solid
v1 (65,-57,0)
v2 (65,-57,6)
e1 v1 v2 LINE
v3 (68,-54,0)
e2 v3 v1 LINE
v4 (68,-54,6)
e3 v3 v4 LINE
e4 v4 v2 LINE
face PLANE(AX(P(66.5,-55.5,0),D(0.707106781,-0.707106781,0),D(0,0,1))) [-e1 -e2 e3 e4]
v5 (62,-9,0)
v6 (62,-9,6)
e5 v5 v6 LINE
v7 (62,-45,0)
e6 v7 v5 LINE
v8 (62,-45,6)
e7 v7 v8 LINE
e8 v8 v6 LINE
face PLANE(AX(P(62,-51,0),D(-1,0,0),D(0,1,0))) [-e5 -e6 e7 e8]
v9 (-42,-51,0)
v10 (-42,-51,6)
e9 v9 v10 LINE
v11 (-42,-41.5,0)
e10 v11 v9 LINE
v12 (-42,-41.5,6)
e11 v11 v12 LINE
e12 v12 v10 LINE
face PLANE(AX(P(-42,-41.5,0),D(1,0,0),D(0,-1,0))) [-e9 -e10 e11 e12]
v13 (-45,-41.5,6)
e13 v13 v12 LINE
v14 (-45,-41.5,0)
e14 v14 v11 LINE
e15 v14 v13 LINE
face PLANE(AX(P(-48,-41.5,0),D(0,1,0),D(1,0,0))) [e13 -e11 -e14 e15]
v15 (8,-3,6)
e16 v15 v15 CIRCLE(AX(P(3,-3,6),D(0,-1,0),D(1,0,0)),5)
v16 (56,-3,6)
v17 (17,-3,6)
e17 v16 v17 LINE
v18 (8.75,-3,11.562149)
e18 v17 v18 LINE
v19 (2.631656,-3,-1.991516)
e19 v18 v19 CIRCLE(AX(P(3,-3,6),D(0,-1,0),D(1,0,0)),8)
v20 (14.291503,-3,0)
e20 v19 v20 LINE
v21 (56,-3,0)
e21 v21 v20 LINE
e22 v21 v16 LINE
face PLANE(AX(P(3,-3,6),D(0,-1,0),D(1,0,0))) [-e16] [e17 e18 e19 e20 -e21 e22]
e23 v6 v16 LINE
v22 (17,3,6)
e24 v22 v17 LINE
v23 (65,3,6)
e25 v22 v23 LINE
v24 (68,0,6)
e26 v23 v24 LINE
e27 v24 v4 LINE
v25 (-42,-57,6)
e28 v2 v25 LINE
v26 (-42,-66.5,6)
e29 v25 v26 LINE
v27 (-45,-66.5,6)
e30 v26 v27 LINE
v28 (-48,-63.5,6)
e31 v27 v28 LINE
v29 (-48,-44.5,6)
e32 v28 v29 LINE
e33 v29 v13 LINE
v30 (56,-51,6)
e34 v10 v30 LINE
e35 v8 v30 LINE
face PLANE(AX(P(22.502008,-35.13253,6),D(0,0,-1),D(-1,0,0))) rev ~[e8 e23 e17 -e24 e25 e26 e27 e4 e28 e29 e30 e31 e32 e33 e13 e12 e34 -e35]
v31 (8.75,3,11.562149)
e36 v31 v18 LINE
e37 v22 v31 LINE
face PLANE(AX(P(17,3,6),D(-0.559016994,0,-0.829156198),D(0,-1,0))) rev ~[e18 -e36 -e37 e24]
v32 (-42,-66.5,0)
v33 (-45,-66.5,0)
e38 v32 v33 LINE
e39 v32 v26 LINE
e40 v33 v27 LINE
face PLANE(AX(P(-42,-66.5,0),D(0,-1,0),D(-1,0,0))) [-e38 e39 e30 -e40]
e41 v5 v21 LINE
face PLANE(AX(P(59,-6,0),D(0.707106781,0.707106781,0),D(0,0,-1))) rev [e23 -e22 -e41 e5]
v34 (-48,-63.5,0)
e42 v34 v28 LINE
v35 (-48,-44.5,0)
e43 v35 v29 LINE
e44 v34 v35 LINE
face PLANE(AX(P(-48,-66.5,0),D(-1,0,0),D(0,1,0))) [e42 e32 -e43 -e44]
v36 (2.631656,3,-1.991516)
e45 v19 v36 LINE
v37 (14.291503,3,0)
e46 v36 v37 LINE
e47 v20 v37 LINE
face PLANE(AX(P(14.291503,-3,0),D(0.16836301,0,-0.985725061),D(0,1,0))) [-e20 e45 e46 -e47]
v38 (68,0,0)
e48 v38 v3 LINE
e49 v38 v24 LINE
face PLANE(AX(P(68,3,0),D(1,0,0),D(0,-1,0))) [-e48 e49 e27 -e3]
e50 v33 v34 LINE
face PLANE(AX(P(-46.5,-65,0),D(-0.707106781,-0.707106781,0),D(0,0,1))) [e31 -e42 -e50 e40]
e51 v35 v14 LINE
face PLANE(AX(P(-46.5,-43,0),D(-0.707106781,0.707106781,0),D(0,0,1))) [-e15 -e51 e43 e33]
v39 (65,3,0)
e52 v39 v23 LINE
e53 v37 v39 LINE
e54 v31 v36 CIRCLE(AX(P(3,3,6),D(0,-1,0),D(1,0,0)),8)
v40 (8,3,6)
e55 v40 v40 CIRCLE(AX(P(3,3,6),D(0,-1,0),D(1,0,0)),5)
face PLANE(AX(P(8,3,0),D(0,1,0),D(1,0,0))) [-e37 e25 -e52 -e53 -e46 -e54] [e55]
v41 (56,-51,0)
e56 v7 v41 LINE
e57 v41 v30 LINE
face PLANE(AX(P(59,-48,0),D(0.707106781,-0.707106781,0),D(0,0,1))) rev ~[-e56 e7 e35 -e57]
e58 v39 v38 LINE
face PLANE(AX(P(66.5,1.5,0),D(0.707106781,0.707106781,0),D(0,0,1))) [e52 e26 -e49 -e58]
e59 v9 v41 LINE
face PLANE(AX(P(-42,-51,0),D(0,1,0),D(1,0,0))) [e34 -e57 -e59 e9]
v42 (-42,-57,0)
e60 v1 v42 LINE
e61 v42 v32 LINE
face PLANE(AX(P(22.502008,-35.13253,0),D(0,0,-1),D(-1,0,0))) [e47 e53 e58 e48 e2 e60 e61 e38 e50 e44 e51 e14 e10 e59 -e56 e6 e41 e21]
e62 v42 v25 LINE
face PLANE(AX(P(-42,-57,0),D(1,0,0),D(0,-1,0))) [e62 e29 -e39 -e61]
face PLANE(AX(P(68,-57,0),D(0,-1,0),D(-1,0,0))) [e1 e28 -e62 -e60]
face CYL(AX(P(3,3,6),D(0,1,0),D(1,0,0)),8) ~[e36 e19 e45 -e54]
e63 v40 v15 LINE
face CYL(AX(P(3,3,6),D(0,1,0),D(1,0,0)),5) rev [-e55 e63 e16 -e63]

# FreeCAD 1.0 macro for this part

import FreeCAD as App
import Part
import Sketcher

V = App.Vector
Q = App.Units.Quantity


def edges_at(feature, points):
    """Names of the edges that pass closest to the given points."""
    edges = feature.Shape.Edges
    near = lambda p: min(range(len(edges)), key=lambda i: edges[i].distToShape(Part.Vertex(*p))[0])
    return sorted({f"Edge{near(p) + 1}" for p in points})

doc = App.newDocument("Part")
body = doc.addObject("PartDesign::Body", "Body")

# Sketch on XY plane
sketch1 = body.newObject("Sketcher::SketchObject", "Sketch")
sketch1.AttachmentSupport = (doc.getObject("XY_Plane"), [""])
sketch1.MapMode = "FlatFace"
sketch1.addGeometry(Part.LineSegment(V(68, 3, 0), V(8, 3, 0)), False)
sketch1.addGeometry(Part.LineSegment(V(8, 3, 0), V(8, -3, 0)), False)
sketch1.addGeometry(Part.LineSegment(V(8, -3, 0), V(62, -3, 0)), False)
sketch1.addGeometry(Part.LineSegment(V(62, -3, 0), V(62, -51, 0)), False)
sketch1.addGeometry(Part.LineSegment(V(62, -51, 0), V(-42, -51, 0)), False)
sketch1.addGeometry(Part.LineSegment(V(-42, -51, 0), V(-42, -42, 0)), False)
sketch1.addGeometry(Part.LineSegment(V(-42, -42, 0), V(-48, -42, 0)), False)
sketch1.addGeometry(Part.LineSegment(V(-48, -42, 0), V(-48, -66, 0)), False)
sketch1.addGeometry(Part.LineSegment(V(-48, -66, 0), V(-42, -66, 0)), False)
sketch1.addGeometry(Part.LineSegment(V(-42, -66, 0), V(-42, -57, 0)), False)
sketch1.addGeometry(Part.LineSegment(V(-42, -57, 0), V(68, -57, 0)), False)
sketch1.addGeometry(Part.LineSegment(V(68, -57, 0), V(68, 3, 0)), False)
sketch1.addConstraint(Sketcher.Constraint("Coincident", 0, 2, 1, 1))
sketch1.addConstraint(Sketcher.Constraint("Coincident", 1, 2, 2, 1))
sketch1.addConstraint(Sketcher.Constraint("Coincident", 2, 2, 3, 1))
sketch1.addConstraint(Sketcher.Constraint("Coincident", 3, 2, 4, 1))
sketch1.addConstraint(Sketcher.Constraint("Coincident", 4, 2, 5, 1))
sketch1.addConstraint(Sketcher.Constraint("Coincident", 5, 2, 6, 1))
sketch1.addConstraint(Sketcher.Constraint("Coincident", 6, 2, 7, 1))
sketch1.addConstraint(Sketcher.Constraint("Coincident", 7, 2, 8, 1))
sketch1.addConstraint(Sketcher.Constraint("Coincident", 8, 2, 9, 1))
sketch1.addConstraint(Sketcher.Constraint("Coincident", 9, 2, 10, 1))
sketch1.addConstraint(Sketcher.Constraint("Coincident", 10, 2, 11, 1))
sketch1.addConstraint(Sketcher.Constraint("Coincident", 11, 2, 0, 1))
sketch1.addConstraint(Sketcher.Constraint("Horizontal", 0))
sketch1.addConstraint(Sketcher.Constraint("Vertical", 1))
sketch1.addConstraint(Sketcher.Constraint("Horizontal", 2))
sketch1.addConstraint(Sketcher.Constraint("Vertical", 3))
sketch1.addConstraint(Sketcher.Constraint("Horizontal", 4))
sketch1.addConstraint(Sketcher.Constraint("Vertical", 5))
sketch1.addConstraint(Sketcher.Constraint("Horizontal", 6))
sketch1.addConstraint(Sketcher.Constraint("Vertical", 7))
sketch1.addConstraint(Sketcher.Constraint("Horizontal", 8))
sketch1.addConstraint(Sketcher.Constraint("Vertical", 9))
sketch1.addConstraint(Sketcher.Constraint("Horizontal", 10))
sketch1.addConstraint(Sketcher.Constraint("Vertical", 11))
sketch1.addConstraint(Sketcher.Constraint("Vertical", 5, 2, 8, 2))
sketch1.addConstraint(Sketcher.Constraint("Equal", 8, 1))
sketch1.addConstraint(Sketcher.Constraint("Equal", 5, 9))
sketch1.addConstraint(Sketcher.Constraint("Equal", 0, 11))
sketch1.addConstraint(Sketcher.Constraint("DistanceX", 0, 2, 0, 1, Q("60 mm")))
sketch1.addConstraint(Sketcher.Constraint("DistanceX", 2, 1, 2, 2, Q("54 mm")))
sketch1.addConstraint(Sketcher.Constraint("DistanceX", 4, 2, 4, 1, Q("104 mm")))
sketch1.addConstraint(Sketcher.Constraint("DistanceX", 6, 2, 6, 1, Q("6 mm")))
sketch1.addConstraint(Sketcher.Constraint("DistanceY", 3, 2, 3, 1, Q("48 mm")))
sketch1.addConstraint(Sketcher.Constraint("DistanceY", 7, 2, 7, 1, Q("25 mm")))
sketch1.addConstraint(Sketcher.Constraint("DistanceX", -1, 1, 0, 2, Q("8 mm")))
sketch1.addConstraint(Sketcher.Constraint("DistanceY", -1, 1, 0, 2, Q("3 mm")))
pad1 = body.newObject("PartDesign::Pad", "Pad")
pad1.Profile = sketch1
pad1.Length = 6
body2 = doc.addObject("PartDesign::Body", "Body001")

# Sketch on XY plane
sketch2 = body2.newObject("Sketcher::SketchObject", "Sketch001")
sketch2.AttachmentSupport = (doc.getObject("XY_Plane001"), [""])
sketch2.MapMode = "FlatFace"
sketch2.addGeometry(Part.Circle(V(3, 3, 0), V(0, 0, 1), 5), False)
sketch2.addConstraint(Sketcher.Constraint("Diameter", 0, Q("10 mm")))
sketch2.addConstraint(Sketcher.Constraint("DistanceX", -1, 1, 0, 3, Q("3 mm")))
sketch2.addConstraint(Sketcher.Constraint("DistanceY", -1, 1, 0, 3, Q("3 mm")))
pad2 = body2.newObject("PartDesign::Pad", "Pad001")
pad2.Profile = sketch2
pad2.Length = 6
body3 = doc.addObject("PartDesign::Body", "Body002")

# Sketch on XY plane
sketch3 = body3.newObject("Sketcher::SketchObject", "Sketch002")
sketch3.AttachmentSupport = (doc.getObject("XY_Plane002"), [""])
sketch3.MapMode = "FlatFace"
sketch3.addGeometry(Part.Circle(V(3, 3, 0), V(0, 0, 1), 8), False)
sketch3.addConstraint(Sketcher.Constraint("Diameter", 0, Q("16 mm")))
sketch3.addConstraint(Sketcher.Constraint("DistanceX", -1, 1, 0, 3, Q("3 mm")))
sketch3.addConstraint(Sketcher.Constraint("DistanceY", -1, 1, 0, 3, Q("3 mm")))
pad3 = body3.newObject("PartDesign::Pad", "Pad002")
pad3.Profile = sketch3
pad3.Length = 6
doc.recompute()

boolean = body3.newObject("PartDesign::Boolean", "Boolean")
boolean.Type = "Cut"
boolean.addObjects([body2])
body4 = doc.addObject("PartDesign::Body", "Body003")
doc.recompute()

body3.Placement = App.Placement(V(0, 3, 3), App.Rotation(V(1, 0, 0), 90))
boolean2 = body4.newObject("PartDesign::Boolean", "Boolean001")
boolean2.Type = "Fuse"
boolean2.addObjects([body3])
doc.recompute()

boolean3 = body4.newObject("PartDesign::Boolean", "Boolean002")
boolean3.Type = "Fuse"
boolean3.addObjects([body])
doc.recompute()

chamfer = body4.newObject("PartDesign::Chamfer", "Chamfer")
chamfer.Base = (boolean3, edges_at(boolean3, [(11, 0, 6)]))
chamfer.Size = 6
doc.recompute()

chamfer2 = body4.newObject("PartDesign::Chamfer", "Chamfer001")
chamfer2.Base = (chamfer, edges_at(chamfer, [(8.292, 0, 0)]))
chamfer2.Size = 6
doc.recompute()

chamfer3 = body4.newObject("PartDesign::Chamfer", "Chamfer002")
chamfer3.Base = (chamfer2, edges_at(chamfer2, [(62, -51, 3)]))
chamfer3.Size = 6
doc.recompute()

chamfer4 = body4.newObject("PartDesign::Chamfer", "Chamfer003")
chamfer4.Base = (chamfer3, edges_at(chamfer3, [(62, -3, 3)]))
chamfer4.Size = 6
doc.recompute()

chamfer5 = body4.newObject("PartDesign::Chamfer", "Chamfer004")
chamfer5.Base = (chamfer4, edges_at(chamfer4, [(68, 3, 3)]))
chamfer5.Size = 3
doc.recompute()

chamfer6 = body4.newObject("PartDesign::Chamfer", "Chamfer005")
chamfer6.Base = (chamfer5, edges_at(chamfer5, [(68, -57, 3)]))
chamfer6.Size = 3
doc.recompute()

chamfer7 = body4.newObject("PartDesign::Chamfer", "Chamfer006")
chamfer7.Base = (chamfer6, edges_at(chamfer6, [(-48, -66.5, 3)]))
chamfer7.Size = 3
doc.recompute()

chamfer8 = body4.newObject("PartDesign::Chamfer", "Chamfer007")
chamfer8.Base = (chamfer7, edges_at(chamfer7, [(-48, -41.5, 3)]))
chamfer8.Size = 3

doc.recompute()
